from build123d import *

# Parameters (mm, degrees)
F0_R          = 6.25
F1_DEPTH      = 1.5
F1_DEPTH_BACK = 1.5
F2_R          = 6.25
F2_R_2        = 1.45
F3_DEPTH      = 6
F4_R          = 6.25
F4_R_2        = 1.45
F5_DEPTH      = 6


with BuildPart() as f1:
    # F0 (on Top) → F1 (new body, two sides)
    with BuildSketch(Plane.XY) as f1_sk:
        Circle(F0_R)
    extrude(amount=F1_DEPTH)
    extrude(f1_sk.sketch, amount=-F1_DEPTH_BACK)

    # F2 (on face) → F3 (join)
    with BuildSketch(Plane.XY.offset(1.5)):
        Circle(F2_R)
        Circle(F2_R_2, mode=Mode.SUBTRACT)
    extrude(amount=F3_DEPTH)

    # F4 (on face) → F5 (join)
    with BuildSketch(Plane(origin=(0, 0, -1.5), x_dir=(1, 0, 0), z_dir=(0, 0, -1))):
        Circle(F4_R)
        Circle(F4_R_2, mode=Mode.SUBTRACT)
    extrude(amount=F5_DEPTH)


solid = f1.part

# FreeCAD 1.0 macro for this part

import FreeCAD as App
import Part
import Sketcher

V = App.Vector

doc = App.newDocument("Part")
body = doc.addObject("PartDesign::Body", "Body")

# Sketch on XY plane
sketch1 = body.newObject("Sketcher::SketchObject", "Sketch")
sketch1.AttachmentSupport = (doc.getObject("XY_Plane"), [""])
sketch1.MapMode = "FlatFace"
sketch1.addGeometry(Part.Circle(V(0, 0, 0), V(0, 0, 1), 6.25), False)
sketch1.addConstraint([
    Sketcher.Constraint("Coincident", 0, 3, -1, 1),
    Sketcher.Constraint("Diameter", 0, 12.5),
])
pad1 = body.newObject("PartDesign::Pad", "Pad")
pad1.Profile = sketch1
pad1.Type = "TwoLengths"
pad1.Length = 1.5
pad1.Length2 = 1.5

# Sketch on XY plane
sketch2 = body.newObject("Sketcher::SketchObject", "Sketch001")
sketch2.AttachmentSupport = (doc.getObject("XY_Plane"), [""])
sketch2.MapMode = "FlatFace"
sketch2.AttachmentOffset = App.Placement(V(0, 0, 1.5), App.Rotation())
sketch2.addGeometry([
    Part.Circle(V(0, 0, 0), V(0, 0, 1), 6.25),
    Part.Circle(V(0, 0, 0), V(0, 0, 1), 1.45),
], False)
sketch2.addConstraint([
    Sketcher.Constraint("Coincident", 0, 3, -1, 1),
    Sketcher.Constraint("Coincident", 1, 3, -1, 1),
    Sketcher.Constraint("Diameter", 0, 12.5),
    Sketcher.Constraint("Diameter", 1, 2.9),
])
pad2 = body.newObject("PartDesign::Pad", "Pad001")
pad2.Profile = sketch2
pad2.Length = 6

# Sketch on XY plane
sketch3 = body.newObject("Sketcher::SketchObject", "Sketch002")
sketch3.AttachmentSupport = (doc.getObject("XY_Plane"), [""])
sketch3.MapMode = "FlatFace"
sketch3.AttachmentOffset = App.Placement(V(0, 0, -1.5), App.Rotation())
sketch3.addGeometry([
    Part.Circle(V(0, 0, 0), V(0, 0, 1), 6.25),
    Part.Circle(V(0, 0, 0), V(0, 0, 1), 1.45),
], False)
sketch3.addConstraint([
    Sketcher.Constraint("Coincident", 0, 3, -1, 1),
    Sketcher.Constraint("Coincident", 1, 3, -1, 1),
    Sketcher.Constraint("Diameter", 0, 12.5),
    Sketcher.Constraint("Diameter", 1, 2.9),
])
pad3 = body.newObject("PartDesign::Pad", "Pad002")
pad3.Profile = sketch3
pad3.Length = 6
pad3.Reversed = True

doc.recompute()
